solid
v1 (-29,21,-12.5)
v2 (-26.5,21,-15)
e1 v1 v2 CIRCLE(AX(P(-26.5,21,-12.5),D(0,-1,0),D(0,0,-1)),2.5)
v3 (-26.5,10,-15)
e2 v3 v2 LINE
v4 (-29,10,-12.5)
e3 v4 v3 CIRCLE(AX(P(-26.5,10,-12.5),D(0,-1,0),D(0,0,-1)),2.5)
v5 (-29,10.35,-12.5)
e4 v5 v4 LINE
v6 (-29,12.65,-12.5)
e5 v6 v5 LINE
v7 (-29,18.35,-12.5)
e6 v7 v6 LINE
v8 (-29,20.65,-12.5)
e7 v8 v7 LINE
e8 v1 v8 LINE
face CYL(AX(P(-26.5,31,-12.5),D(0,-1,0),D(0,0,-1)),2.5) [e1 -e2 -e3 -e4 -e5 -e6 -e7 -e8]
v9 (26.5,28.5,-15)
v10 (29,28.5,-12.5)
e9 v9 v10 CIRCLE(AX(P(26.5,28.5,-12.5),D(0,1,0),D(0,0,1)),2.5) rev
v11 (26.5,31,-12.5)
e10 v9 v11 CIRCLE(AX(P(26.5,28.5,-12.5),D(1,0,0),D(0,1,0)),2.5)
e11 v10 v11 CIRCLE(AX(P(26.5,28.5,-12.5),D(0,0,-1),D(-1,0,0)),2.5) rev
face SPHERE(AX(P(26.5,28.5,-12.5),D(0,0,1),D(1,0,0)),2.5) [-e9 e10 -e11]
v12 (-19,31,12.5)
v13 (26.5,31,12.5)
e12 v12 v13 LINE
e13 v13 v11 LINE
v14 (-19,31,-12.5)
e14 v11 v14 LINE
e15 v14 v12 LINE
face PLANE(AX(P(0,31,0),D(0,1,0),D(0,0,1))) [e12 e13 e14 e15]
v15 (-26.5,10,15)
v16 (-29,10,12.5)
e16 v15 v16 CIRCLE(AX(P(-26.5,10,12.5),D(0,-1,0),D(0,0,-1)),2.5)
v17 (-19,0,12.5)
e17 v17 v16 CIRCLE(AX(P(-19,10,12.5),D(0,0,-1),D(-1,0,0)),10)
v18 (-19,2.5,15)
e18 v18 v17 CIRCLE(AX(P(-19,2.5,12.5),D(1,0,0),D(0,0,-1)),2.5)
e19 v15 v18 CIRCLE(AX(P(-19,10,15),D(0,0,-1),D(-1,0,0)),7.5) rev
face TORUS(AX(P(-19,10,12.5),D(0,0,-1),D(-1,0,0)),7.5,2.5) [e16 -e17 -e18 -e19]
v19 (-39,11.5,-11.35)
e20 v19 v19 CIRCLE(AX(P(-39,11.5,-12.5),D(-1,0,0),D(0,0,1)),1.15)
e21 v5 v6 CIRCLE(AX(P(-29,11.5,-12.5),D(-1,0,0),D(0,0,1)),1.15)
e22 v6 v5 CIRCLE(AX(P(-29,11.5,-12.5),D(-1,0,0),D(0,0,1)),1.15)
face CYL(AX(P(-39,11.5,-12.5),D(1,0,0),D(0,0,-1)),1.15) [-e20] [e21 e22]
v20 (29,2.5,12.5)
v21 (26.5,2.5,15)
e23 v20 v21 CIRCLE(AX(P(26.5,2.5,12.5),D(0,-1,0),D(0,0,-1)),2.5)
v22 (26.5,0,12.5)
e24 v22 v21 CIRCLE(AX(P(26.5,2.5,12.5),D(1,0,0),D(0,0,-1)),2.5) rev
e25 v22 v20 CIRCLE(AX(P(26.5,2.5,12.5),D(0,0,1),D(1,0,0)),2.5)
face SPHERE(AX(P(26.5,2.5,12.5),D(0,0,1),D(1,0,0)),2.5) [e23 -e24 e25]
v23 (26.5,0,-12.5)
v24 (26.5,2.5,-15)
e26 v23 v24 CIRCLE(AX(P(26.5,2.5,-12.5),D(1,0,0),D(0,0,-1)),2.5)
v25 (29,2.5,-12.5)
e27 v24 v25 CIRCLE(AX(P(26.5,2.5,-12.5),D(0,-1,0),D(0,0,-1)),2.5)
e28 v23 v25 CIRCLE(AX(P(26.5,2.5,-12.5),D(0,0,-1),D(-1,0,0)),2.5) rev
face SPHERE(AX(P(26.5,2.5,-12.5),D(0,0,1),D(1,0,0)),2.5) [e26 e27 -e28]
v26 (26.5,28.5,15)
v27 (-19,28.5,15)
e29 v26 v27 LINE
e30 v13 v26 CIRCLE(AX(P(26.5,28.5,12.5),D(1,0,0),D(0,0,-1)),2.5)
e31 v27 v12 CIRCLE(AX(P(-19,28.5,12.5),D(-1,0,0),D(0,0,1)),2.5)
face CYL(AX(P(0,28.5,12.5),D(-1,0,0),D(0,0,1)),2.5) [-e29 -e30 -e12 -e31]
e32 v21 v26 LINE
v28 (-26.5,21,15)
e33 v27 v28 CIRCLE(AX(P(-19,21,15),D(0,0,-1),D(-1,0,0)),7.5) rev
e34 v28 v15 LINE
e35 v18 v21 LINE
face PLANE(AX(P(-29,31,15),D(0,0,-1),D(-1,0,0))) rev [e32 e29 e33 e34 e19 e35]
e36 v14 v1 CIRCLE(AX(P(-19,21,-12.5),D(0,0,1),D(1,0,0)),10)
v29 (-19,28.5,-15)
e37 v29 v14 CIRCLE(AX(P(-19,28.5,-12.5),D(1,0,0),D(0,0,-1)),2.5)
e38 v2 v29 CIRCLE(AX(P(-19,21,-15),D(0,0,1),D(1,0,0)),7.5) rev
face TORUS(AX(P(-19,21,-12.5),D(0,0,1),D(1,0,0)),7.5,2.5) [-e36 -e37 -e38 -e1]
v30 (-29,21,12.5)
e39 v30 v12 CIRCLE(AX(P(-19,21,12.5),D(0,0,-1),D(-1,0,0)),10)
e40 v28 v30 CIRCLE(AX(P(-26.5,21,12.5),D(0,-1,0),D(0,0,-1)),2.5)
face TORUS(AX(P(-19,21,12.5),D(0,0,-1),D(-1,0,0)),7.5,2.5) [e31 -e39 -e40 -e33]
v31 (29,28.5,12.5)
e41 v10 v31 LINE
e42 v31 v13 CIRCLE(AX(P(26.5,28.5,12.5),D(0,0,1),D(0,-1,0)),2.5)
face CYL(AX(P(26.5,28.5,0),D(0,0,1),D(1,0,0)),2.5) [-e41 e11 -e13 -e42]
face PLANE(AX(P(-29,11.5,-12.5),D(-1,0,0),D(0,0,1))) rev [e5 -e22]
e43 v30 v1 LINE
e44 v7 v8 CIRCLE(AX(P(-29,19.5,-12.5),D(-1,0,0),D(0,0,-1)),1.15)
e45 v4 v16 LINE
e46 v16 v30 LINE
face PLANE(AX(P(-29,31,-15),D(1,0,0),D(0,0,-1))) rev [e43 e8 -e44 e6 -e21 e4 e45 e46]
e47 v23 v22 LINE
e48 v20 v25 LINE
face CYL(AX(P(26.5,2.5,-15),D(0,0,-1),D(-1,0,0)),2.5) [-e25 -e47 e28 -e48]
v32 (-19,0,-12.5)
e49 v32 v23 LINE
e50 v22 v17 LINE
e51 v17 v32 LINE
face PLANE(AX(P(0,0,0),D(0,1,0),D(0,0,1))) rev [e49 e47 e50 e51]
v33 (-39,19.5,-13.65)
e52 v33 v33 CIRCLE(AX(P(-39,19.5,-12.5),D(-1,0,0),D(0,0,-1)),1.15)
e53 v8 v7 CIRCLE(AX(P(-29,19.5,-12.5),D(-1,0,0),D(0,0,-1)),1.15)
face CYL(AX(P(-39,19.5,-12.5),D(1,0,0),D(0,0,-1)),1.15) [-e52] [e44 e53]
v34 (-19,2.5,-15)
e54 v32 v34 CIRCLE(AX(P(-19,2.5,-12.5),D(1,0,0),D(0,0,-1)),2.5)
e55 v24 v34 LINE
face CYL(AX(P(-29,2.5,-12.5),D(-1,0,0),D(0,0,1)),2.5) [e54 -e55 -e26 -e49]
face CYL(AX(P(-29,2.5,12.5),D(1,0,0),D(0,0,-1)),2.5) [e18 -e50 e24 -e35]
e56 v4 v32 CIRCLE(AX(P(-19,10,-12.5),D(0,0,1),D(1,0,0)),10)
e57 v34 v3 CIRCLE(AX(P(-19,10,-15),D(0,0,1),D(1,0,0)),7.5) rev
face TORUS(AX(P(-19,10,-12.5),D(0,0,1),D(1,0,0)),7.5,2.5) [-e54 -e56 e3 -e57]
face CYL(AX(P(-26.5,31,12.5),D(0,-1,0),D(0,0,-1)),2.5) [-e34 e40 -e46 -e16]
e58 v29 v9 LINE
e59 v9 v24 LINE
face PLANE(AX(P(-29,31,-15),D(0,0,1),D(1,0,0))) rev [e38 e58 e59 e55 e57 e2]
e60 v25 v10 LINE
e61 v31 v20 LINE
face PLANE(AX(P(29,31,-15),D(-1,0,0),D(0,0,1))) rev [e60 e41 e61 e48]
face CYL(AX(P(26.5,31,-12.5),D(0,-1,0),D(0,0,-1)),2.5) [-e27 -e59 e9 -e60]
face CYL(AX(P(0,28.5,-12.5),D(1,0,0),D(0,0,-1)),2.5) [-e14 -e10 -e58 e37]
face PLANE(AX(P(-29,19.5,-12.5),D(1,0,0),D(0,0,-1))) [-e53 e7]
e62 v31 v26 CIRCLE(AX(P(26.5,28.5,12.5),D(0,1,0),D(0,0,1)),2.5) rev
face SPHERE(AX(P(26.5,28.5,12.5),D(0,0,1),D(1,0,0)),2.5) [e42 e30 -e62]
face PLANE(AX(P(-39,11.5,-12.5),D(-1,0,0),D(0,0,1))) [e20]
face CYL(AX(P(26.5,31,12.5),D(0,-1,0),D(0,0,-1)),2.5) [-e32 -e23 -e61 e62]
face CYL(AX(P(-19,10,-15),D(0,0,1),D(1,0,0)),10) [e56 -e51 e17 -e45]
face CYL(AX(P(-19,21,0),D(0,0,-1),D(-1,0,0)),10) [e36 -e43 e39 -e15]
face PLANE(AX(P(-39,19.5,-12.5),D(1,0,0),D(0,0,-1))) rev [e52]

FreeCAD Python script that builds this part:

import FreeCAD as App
import Part
import Sketcher
Q = App.Units.Quantity


def edges_at(feature, points):
    """Names of the edges that pass closest to the given points."""
    edges = feature.Shape.Edges
    near = lambda p: min(range(len(edges)), key=lambda i: edges[i].distToShape(Part.Vertex(*p))[0])
    return sorted({f"Edge{near(p) + 1}" for p in points})

doc = App.newDocument("Part")
params = doc.addObject("Spreadsheet::Sheet", "Params")
for row, (alias, value) in enumerate([
    ("sketch1_width", "58 mm"),
    ("sketch1_height", "30 mm"),
    ("pad1_length", "31 mm"),
    ("fillet_radius", "10 mm"),
    ("fillet2_radius", "2.5 mm"),
    ("sketch2_diameter", "2.3 mm"),
    ("pad2_length", "10 mm"),
], start=1):
    params.set(f"A{row}", alias)
    params.set(f"B{row}", "=" + value)
    params.setAlias(f"B{row}", alias)

body = doc.addObject("PartDesign::Body", "Body")

sketch1 = body.newObject("Sketcher::SketchObject", "Sketch")
sketch1.AttachmentSupport = (doc.getObject("XZ_Plane"), [""])
sketch1.MapMode = "FlatFace"
sketch1.addGeometry(Part.LineSegment(App.Vector(-29, -15, 0), App.Vector(-29, 15, 0)), False)
sketch1.addGeometry(Part.LineSegment(App.Vector(-29, 15, 0), App.Vector(29, 15, 0)), False)
sketch1.addGeometry(Part.LineSegment(App.Vector(29, 15, 0), App.Vector(29, -15, 0)), False)
sketch1.addGeometry(Part.LineSegment(App.Vector(29, -15, 0), App.Vector(-29, -15, 0)), False)
sketch1.addConstraint(Sketcher.Constraint("Coincident", 0, 2, 1, 1))
sketch1.addConstraint(Sketcher.Constraint("Coincident", 1, 2, 2, 1))
sketch1.addConstraint(Sketcher.Constraint("Coincident", 2, 2, 3, 1))
sketch1.addConstraint(Sketcher.Constraint("Coincident", 3, 2, 0, 1))
sketch1.addConstraint(Sketcher.Constraint("Vertical", 0))
sketch1.addConstraint(Sketcher.Constraint("Horizontal", 1))
sketch1.addConstraint(Sketcher.Constraint("Vertical", 2))
sketch1.addConstraint(Sketcher.Constraint("Horizontal", 3))
sketch1.addConstraint(Sketcher.Constraint("Symmetric", 0, 2, 2, 2, -1, 1))
sketch1.addConstraint(Sketcher.Constraint("DistanceX", 1, 1, 1, 2, Q("58 mm")))
sketch1.addConstraint(Sketcher.Constraint("DistanceY", 0, 1, 0, 2, Q("30 mm")))
sketch1.setExpression("Constraints[9]", "Params.sketch1_width")
sketch1.setExpression("Constraints[10]", "Params.sketch1_height")
pad1 = body.newObject("PartDesign::Pad", "Pad")
pad1.Profile = sketch1
pad1.setExpression("Length", "Params.pad1_length")
pad1.Reversed = True
doc.recompute()

fillet = body.newObject("PartDesign::Fillet", "Fillet")
fillet.Base = (pad1, edges_at(pad1, [(-29, 31, 0), (-29, 0, 0)]))
fillet.setExpression("Radius", "Params.fillet_radius")
doc.recompute()

fillet2 = body.newObject("PartDesign::Fillet", "Fillet001")
fillet2.Base = (fillet, ["Edge1"])
fillet2.UseAllEdges = True
fillet2.setExpression("Radius", "Params.fillet2_radius")

sketch2 = body.newObject("Sketcher::SketchObject", "Sketch001")
sketch2.AttachmentSupport = (doc.getObject("YZ_Plane"), [""])
sketch2.MapMode = "FlatFace"
sketch2.AttachmentOffset = App.Placement(App.Vector(0, 0, -29), App.Rotation())
sketch2.addGeometry(Part.Circle(App.Vector(19.5, -12.5, 0), App.Vector(0, 0, 1), 1.1), False)
sketch2.addGeometry(Part.Circle(App.Vector(11.5, -12.5, 0), App.Vector(0, 0, 1), 1.1), False)
sketch2.addConstraint(Sketcher.Constraint("Equal", 0, 1))
sketch2.addConstraint(Sketcher.Constraint("Horizontal", 0, 3, 1, 3))
sketch2.addConstraint(Sketcher.Constraint("Diameter", 0, Q("2.3 mm")))
sketch2.addConstraint(Sketcher.Constraint("DistanceX", 1, 3, 0, 3, Q("8 mm")))
sketch2.addConstraint(Sketcher.Constraint("DistanceX", -1, 1, 0, 3, Q("19.5 mm")))
sketch2.addConstraint(Sketcher.Constraint("DistanceY", 0, 3, -1, 1, Q("12.5 mm")))
sketch2.setExpression("Constraints[2]", "Params.sketch2_diameter")
pad2 = body.newObject("PartDesign::Pad", "Pad001")
pad2.Profile = sketch2
pad2.setExpression("Length", "Params.pad2_length")
pad2.Reversed = True

doc.recompute()
